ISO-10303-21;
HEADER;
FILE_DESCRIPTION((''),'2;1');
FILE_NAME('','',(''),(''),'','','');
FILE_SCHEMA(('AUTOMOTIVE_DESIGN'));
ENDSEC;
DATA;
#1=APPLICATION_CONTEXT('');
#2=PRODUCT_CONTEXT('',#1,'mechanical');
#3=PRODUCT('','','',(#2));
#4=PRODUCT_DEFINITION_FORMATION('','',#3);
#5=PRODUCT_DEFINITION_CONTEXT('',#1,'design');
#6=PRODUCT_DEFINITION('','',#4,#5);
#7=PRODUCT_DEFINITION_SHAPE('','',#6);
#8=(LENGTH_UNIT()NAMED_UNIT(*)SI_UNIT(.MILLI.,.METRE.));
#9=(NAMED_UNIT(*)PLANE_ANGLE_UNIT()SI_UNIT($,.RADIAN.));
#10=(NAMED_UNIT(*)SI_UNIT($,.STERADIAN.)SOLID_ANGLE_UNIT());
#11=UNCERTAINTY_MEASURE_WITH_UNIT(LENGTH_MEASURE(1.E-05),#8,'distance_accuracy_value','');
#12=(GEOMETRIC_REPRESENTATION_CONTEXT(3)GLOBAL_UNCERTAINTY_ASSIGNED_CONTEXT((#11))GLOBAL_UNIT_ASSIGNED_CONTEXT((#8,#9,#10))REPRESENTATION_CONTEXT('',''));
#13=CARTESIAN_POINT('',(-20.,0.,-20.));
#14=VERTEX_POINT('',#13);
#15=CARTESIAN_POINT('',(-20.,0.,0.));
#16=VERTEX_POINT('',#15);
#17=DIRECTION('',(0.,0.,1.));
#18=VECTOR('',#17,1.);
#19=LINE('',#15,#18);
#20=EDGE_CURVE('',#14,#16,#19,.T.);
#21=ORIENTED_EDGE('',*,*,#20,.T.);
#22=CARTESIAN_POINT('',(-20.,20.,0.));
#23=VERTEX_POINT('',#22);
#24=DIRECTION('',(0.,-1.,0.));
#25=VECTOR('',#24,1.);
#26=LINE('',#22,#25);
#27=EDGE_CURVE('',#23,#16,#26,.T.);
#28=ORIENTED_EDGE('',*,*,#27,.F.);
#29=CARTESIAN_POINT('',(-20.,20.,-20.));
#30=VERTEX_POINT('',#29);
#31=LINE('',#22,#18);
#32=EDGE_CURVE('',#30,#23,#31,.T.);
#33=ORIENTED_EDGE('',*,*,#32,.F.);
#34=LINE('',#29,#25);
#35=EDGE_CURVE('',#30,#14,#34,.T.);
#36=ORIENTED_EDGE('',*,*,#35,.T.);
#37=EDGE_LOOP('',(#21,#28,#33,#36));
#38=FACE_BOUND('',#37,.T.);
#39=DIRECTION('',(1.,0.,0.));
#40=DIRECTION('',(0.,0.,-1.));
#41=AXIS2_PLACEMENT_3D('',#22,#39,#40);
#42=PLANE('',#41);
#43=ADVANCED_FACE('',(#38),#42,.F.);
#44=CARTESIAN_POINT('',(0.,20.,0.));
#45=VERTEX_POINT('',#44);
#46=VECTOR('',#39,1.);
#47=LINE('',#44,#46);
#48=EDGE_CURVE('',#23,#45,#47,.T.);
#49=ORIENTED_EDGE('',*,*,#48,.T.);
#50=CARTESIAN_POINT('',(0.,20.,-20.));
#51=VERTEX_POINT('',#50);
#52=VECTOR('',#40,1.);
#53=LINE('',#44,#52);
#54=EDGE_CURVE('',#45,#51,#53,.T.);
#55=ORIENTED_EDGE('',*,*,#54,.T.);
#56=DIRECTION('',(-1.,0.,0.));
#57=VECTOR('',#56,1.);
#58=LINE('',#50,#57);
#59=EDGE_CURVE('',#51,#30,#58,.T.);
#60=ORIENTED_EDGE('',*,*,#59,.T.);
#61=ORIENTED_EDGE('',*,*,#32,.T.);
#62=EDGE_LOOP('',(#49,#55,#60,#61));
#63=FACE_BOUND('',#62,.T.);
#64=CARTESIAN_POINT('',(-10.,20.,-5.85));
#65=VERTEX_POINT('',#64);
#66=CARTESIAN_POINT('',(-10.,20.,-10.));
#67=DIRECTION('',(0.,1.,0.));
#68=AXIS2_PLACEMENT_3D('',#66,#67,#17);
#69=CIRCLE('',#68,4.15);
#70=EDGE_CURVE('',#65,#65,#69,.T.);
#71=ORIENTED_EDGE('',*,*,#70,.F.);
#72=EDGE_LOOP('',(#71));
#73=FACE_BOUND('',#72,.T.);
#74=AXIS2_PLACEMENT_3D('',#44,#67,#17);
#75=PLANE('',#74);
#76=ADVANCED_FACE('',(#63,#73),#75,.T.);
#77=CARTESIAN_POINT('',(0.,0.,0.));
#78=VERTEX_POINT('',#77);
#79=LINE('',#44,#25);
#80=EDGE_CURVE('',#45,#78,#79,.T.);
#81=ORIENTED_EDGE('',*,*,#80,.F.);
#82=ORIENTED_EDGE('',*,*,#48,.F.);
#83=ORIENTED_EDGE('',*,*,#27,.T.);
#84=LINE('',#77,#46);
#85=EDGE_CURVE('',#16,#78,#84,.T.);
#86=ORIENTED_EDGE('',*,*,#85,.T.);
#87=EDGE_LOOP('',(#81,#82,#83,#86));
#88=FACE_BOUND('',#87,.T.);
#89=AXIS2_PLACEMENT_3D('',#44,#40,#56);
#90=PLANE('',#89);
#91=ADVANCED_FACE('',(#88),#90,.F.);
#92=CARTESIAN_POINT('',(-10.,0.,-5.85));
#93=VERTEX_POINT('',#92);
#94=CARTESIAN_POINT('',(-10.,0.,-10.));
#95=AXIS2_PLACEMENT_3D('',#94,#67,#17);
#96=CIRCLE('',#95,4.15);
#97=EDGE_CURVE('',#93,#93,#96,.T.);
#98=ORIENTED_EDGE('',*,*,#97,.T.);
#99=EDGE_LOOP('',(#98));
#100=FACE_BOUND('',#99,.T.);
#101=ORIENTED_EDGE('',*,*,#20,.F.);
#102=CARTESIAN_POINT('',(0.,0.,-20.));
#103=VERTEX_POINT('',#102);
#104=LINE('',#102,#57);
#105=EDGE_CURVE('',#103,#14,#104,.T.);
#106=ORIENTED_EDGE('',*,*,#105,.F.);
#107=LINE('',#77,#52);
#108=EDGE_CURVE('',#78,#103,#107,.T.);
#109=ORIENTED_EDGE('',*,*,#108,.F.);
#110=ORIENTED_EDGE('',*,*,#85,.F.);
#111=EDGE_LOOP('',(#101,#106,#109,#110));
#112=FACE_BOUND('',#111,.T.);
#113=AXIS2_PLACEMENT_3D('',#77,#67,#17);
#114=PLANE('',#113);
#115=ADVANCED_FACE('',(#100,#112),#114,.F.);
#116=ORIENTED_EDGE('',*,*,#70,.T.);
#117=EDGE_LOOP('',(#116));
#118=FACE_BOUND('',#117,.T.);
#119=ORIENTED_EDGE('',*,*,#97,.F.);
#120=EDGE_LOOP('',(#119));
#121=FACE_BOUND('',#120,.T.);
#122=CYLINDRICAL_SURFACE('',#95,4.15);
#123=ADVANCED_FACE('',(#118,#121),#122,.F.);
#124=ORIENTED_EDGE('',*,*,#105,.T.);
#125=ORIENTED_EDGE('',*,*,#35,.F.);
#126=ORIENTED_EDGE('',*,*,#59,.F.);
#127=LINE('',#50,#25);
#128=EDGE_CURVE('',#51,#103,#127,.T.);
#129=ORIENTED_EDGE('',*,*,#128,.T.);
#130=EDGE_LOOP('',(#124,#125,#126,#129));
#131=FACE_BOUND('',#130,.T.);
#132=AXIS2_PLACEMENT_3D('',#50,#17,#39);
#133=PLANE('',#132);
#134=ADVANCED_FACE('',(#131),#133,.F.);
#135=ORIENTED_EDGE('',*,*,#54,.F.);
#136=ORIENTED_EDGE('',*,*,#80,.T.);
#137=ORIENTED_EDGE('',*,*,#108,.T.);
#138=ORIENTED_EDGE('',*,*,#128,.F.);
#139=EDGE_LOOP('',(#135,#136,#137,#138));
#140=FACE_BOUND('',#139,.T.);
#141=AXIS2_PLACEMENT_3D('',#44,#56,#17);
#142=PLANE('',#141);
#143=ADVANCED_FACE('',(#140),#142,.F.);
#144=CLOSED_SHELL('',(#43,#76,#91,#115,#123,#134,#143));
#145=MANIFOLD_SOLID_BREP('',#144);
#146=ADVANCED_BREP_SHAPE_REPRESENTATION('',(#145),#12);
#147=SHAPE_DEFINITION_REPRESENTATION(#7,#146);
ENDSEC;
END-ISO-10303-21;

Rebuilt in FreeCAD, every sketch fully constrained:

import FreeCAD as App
import Part
import Sketcher
Q = App.Units.Quantity

doc = App.newDocument("Part")
params = doc.addObject("Spreadsheet::Sheet", "Params")
for row, (alias, value) in enumerate([
    ("sketch1_width", "20 mm"),
    ("pad1_length", "20 mm"),
    ("sketch2_diameter", "8.3 mm"),
], start=1):
    params.set(f"A{row}", alias)
    params.set(f"B{row}", "=" + value)
    params.setAlias(f"B{row}", alias)

body = doc.addObject("PartDesign::Body", "Body")

# Sketch on XZ plane
sketch1 = doc.addObject("Sketcher::SketchObject", "Sketch")
body.addObject(sketch1)
sketch1.AttachmentSupport = (doc.XZ_Plane, [""])
sketch1.MapMode = "FlatFace"
sketch1.addGeometry([
    Part.LineSegment(App.Vector(-20, -20, 0), App.Vector(-20, 0, 0)),
    Part.LineSegment(App.Vector(-20, 0, 0), App.Vector(0, 0, 0)),
    Part.LineSegment(App.Vector(0, 0, 0), App.Vector(0, -20, 0)),
    Part.LineSegment(App.Vector(0, -20, 0), App.Vector(-20, -20, 0)),
], False)
sketch1.addConstraint([
    Sketcher.Constraint("Coincident", 0, 2, 1, 1),
    Sketcher.Constraint("Coincident", 1, 2, 2, 1),
    Sketcher.Constraint("Coincident", 2, 2, 3, 1),
    Sketcher.Constraint("Coincident", 3, 2, 0, 1),
    Sketcher.Constraint("Vertical", 0),
    Sketcher.Constraint("Horizontal", 1),
    Sketcher.Constraint("Vertical", 2),
    Sketcher.Constraint("Horizontal", 3),
    Sketcher.Constraint("Coincident", 1, 2, -1, 1),
    Sketcher.Constraint("Equal", 3, 0),
    Sketcher.Constraint("DistanceX", 1, 1, 1, 2, Q("20 mm")),
])
sketch1.setExpression("Constraints[10]", "Params.sketch1_width")
pad1 = doc.addObject("PartDesign::Pad", "Pad")
body.addObject(pad1)
pad1.Profile = sketch1
pad1.setExpression("Length", "Params.pad1_length")
pad1.Reversed = True

# Sketch on XZ plane
sketch2 = doc.addObject("Sketcher::SketchObject", "Sketch001")
body.addObject(sketch2)
sketch2.AttachmentSupport = (doc.XZ_Plane, [""])
sketch2.MapMode = "FlatFace"
sketch2.AttachmentOffset = App.Placement(App.Vector(0, 0, -20), App.Rotation())
sketch2.addGeometry(Part.Circle(App.Vector(-10, -10, 0), App.Vector(0, 0, 1), 4.15), False)
sketch2.addConstraint([
    Sketcher.Constraint("Diameter", 0, Q("8.3 mm")),
    Sketcher.Constraint("DistanceX", 0, 3, -1, 1, Q("10 mm")),
    Sketcher.Constraint("DistanceY", 0, 3, -1, 1, Q("10 mm")),
])
sketch2.setExpression("Constraints[0]", "Params.sketch2_diameter")
pocket1 = doc.addObject("PartDesign::Pocket", "Pocket")
body.addObject(pocket1)
pocket1.Profile = sketch2
pocket1.Type = "ThroughAll"
pocket1.Reversed = True

doc.recompute()
